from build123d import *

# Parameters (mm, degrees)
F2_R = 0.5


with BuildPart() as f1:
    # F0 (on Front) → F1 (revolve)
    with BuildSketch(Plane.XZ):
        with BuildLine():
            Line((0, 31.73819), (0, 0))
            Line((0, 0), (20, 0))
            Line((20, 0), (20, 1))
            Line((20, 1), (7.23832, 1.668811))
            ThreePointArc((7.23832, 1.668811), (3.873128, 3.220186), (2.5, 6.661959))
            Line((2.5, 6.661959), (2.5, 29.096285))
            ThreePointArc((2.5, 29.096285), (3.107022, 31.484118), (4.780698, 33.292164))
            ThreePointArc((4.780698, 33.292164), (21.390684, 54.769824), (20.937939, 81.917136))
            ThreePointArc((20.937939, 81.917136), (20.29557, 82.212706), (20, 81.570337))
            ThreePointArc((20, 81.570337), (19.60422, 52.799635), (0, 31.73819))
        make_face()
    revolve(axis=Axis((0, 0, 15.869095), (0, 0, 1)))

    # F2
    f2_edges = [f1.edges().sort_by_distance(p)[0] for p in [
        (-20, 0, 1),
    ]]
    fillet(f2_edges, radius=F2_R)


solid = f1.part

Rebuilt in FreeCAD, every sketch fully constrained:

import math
import FreeCAD as App
import Part
import Sketcher
from FreeCAD import Vector


def edges_at(feature, points):
    """Names of the edges that pass closest to the given points."""
    edges = feature.Shape.Edges
    near = lambda p: min(range(len(edges)), key=lambda i: edges[i].distToShape(Part.Vertex(*p))[0])
    return sorted({f"Edge{near(p) + 1}" for p in points})

doc = App.newDocument("Part")
body = doc.addObject("PartDesign::Body", "Body")

# Sketch on XZ plane
sketch1 = doc.addObject("Sketcher::SketchObject", "Sketch")
body.addObject(sketch1)
sketch1.AttachmentSupport = (doc.XZ_Plane, [""])
sketch1.MapMode = "FlatFace"
sketch1.addGeometry([
    Part.LineSegment(Vector(0, 31.73819, 0), Vector(0, 0, 0)),  # 0
    Part.LineSegment(Vector(0, 0, 0), Vector(20, 0, 0)),  # 1
    Part.LineSegment(Vector(20, 0, 0), Vector(20, 1, 0)),  # 2
    Part.LineSegment(Vector(20, 1, 0), Vector(7.23832, 1.668811, 0)),  # 3
    Part.ArcOfCircle(Part.Circle(Vector(7.5, 6.661959, 0), Vector(0, 0, 1), 5), math.radians(179.999997), math.radians(266.999996)),  # 4
    Part.LineSegment(Vector(2.5, 6.661959, 0), Vector(2.5, 29.096285, 0)),  # 5
    Part.ArcOfCircle(Part.Circle(Vector(7.5, 29.096285, 0), Vector(0, 0, 1), 5), math.radians(122.946822), math.radians(180.000005)),  # 6
    Part.ArcOfCircle(Part.Circle(Vector(-17.517576, 67.698369, 0), Vector(0, 0, 1), 40.999999), math.radians(-57.053182), math.radians(20.291664)),  # 7
    Part.ArcOfCircle(Part.Circle(Vector(20.46897, 81.743736, 0), Vector(0, 0, 1), 0.5), math.radians(20.291662), math.radians(200.291662)),  # 8
    Part.ArcOfCircle(Part.Circle(Vector(-17.517574, 67.698369, 0), Vector(0, 0, 1), 39.999998), math.radians(-64.027521), math.radians(20.291666)),  # 9
], False)
sketch1.addConstraint([
    Sketcher.Constraint("Coincident", 0, 2, 1, 1),
    Sketcher.Constraint("Coincident", 1, 2, 2, 1),
    Sketcher.Constraint("Coincident", 2, 2, 3, 1),
    Sketcher.Constraint("Coincident", 3, 2, 4, 2),
    Sketcher.Constraint("Coincident", 4, 1, 5, 1),
    Sketcher.Constraint("Coincident", 5, 2, 6, 2),
    Sketcher.Constraint("Coincident", 6, 1, 7, 1),
    Sketcher.Constraint("Coincident", 7, 2, 8, 1),
    Sketcher.Constraint("Coincident", 8, 2, 9, 2),
    Sketcher.Constraint("Coincident", 9, 1, 0, 1),
    Sketcher.Constraint("Vertical", 0),
    Sketcher.Constraint("Horizontal", 1),
    Sketcher.Constraint("Vertical", 2),
    Sketcher.Constraint("Vertical", 5),
    Sketcher.Constraint("Coincident", 0, 2, -1, 1),
    Sketcher.Constraint("Coincident", 9, 3, 7, 3),
    Sketcher.Constraint("Radius", 4, 5.0),
    Sketcher.Constraint("Radius", 6, 5.0),
    Sketcher.Constraint("Radius", 7, 40.999999),
    Sketcher.Constraint("Radius", 9, 39.999998),
    Sketcher.Constraint("DistanceX", 1, 1, 1, 2, 20.0),
    Sketcher.Constraint("DistanceY", 2, 1, 2, 2, 1.0),
    Sketcher.Constraint("DistanceX", -1, 1, 8, 2, 20.0),
    Sketcher.Constraint("DistanceX", -1, 1, 4, 3, 7.5),
    Sketcher.Constraint("DistanceY", 0, 2, 0, 1, 31.73819),
    Sketcher.Constraint("DistanceY", 8, 3, 7, 2, 0.1734),
    Sketcher.Constraint("DistanceY", 8, 2, 8, 3, 0.1734),
    Sketcher.Constraint("DistanceX", 6, 1, 8, 2, 15.219302),
    Sketcher.Constraint("DistanceY", 5, 1, 5, 2, 22.434326),
    Sketcher.Constraint("DistanceY", -1, 1, 4, 3, 6.661959),
    Sketcher.Constraint("DistanceY", -1, 1, 7, 3, 67.698369),
    Sketcher.Constraint("DistanceX", -1, 1, 3, 2, 7.23832),
    Sketcher.Constraint("DistanceY", -1, 1, 4, 1, 6.661959),
])
revolution = doc.addObject("PartDesign::Revolution", "Revolution")
body.addObject(revolution)
revolution.Profile = sketch1
revolution.ReferenceAxis = (sketch1, ["V_Axis"])
revolution.Angle = 360
doc.recompute()

fillet = doc.addObject("PartDesign::Fillet", "Fillet")
body.addObject(fillet)
fillet.Base = (revolution, edges_at(revolution, [(-20, 0, 1)]))
fillet.Radius = 0.5

doc.recompute()
